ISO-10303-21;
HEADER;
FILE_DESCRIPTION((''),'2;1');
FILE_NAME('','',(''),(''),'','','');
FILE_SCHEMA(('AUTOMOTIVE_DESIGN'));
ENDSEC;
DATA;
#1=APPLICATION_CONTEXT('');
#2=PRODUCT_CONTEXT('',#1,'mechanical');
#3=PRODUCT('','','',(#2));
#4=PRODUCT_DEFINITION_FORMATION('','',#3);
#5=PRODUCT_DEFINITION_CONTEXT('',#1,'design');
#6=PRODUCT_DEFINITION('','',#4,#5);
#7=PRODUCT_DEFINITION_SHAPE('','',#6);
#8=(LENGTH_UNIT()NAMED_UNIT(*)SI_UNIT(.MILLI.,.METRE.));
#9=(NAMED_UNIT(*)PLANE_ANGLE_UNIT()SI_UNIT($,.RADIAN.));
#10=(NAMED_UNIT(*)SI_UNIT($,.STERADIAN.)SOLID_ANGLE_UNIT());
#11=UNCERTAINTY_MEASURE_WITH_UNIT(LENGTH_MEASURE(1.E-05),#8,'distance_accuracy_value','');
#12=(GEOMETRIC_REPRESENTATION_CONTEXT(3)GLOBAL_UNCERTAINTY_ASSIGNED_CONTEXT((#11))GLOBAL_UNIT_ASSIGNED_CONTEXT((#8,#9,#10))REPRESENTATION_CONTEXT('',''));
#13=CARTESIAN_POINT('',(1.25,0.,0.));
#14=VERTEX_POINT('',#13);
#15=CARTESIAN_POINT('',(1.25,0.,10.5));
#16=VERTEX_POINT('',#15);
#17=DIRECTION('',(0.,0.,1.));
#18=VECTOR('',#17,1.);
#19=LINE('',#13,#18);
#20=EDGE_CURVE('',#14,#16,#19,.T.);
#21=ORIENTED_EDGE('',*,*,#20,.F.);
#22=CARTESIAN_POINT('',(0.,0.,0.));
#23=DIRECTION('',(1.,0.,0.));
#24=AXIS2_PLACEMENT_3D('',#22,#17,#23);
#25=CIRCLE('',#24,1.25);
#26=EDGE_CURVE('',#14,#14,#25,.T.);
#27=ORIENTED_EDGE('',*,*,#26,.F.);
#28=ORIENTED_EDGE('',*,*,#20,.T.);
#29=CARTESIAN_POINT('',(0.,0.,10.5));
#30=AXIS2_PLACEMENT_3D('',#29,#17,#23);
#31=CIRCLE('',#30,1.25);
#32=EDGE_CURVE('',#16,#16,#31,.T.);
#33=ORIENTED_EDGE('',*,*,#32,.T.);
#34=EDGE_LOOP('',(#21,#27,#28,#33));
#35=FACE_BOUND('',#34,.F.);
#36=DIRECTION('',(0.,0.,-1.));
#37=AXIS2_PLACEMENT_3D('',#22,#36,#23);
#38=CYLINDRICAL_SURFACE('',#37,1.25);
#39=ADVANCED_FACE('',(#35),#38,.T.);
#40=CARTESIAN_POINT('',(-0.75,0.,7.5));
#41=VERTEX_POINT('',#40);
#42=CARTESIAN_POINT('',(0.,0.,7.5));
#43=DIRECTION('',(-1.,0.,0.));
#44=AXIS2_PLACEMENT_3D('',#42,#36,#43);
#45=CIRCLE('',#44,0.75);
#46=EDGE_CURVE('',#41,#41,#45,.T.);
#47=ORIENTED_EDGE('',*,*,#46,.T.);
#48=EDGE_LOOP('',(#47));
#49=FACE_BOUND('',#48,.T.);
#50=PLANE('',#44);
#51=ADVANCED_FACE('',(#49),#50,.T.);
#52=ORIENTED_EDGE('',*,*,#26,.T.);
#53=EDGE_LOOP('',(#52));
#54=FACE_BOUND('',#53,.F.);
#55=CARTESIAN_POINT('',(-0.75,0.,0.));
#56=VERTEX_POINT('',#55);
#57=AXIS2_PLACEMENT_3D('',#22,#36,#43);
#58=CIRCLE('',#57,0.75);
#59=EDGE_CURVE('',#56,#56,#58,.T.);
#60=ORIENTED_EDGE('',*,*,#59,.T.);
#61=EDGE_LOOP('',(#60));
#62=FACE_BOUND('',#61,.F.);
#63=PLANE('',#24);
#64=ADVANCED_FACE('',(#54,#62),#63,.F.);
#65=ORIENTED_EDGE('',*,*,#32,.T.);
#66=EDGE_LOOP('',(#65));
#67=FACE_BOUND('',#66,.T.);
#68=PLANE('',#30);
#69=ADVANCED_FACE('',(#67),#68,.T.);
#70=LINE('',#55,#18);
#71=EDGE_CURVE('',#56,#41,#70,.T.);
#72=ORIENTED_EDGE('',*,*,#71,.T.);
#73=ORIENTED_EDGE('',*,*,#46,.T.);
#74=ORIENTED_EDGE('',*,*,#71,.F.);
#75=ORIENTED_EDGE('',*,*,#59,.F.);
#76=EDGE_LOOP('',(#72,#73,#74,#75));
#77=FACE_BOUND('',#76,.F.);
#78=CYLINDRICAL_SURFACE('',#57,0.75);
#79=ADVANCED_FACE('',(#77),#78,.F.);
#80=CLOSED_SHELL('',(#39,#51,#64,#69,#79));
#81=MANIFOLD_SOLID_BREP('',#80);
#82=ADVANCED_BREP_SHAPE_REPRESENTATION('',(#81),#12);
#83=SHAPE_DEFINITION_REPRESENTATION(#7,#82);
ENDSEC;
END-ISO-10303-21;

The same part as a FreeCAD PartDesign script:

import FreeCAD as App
import Part
import Sketcher
Q = App.Units.Quantity

doc = App.newDocument("Part")
body = doc.addObject("PartDesign::Body", "Body")

# Sketch on XY plane
sketch1 = body.newObject("Sketcher::SketchObject", "Sketch")
sketch1.AttachmentSupport = (doc.getObject("XY_Plane"), [""])
sketch1.MapMode = "FlatFace"
sketch1.addGeometry(Part.Circle(App.Vector(0, 0, 0), App.Vector(0, 0, 1), 1.2), False)
sketch1.addConstraint(Sketcher.Constraint("Coincident", 0, 3, -1, 1))
sketch1.addConstraint(Sketcher.Constraint("Diameter", 0, Q("2.5 mm")))
pad1 = body.newObject("PartDesign::Pad", "Pad")
pad1.Profile = sketch1
pad1.Length = 10.5

# Sketch on XY plane
sketch2 = body.newObject("Sketcher::SketchObject", "Sketch001")
sketch2.AttachmentSupport = (doc.getObject("XY_Plane"), [""])
sketch2.MapMode = "FlatFace"
sketch2.addGeometry(Part.Circle(App.Vector(0, 0, 0), App.Vector(0, 0, 1), 0.8), False)
sketch2.addConstraint(Sketcher.Constraint("Coincident", 0, 3, -1, 1))
sketch2.addConstraint(Sketcher.Constraint("Diameter", 0, Q("1.5 mm")))
pocket1 = body.newObject("PartDesign::Pocket", "Pocket")
pocket1.Profile = sketch2
pocket1.Length = 7.5
pocket1.Reversed = True

doc.recompute()
